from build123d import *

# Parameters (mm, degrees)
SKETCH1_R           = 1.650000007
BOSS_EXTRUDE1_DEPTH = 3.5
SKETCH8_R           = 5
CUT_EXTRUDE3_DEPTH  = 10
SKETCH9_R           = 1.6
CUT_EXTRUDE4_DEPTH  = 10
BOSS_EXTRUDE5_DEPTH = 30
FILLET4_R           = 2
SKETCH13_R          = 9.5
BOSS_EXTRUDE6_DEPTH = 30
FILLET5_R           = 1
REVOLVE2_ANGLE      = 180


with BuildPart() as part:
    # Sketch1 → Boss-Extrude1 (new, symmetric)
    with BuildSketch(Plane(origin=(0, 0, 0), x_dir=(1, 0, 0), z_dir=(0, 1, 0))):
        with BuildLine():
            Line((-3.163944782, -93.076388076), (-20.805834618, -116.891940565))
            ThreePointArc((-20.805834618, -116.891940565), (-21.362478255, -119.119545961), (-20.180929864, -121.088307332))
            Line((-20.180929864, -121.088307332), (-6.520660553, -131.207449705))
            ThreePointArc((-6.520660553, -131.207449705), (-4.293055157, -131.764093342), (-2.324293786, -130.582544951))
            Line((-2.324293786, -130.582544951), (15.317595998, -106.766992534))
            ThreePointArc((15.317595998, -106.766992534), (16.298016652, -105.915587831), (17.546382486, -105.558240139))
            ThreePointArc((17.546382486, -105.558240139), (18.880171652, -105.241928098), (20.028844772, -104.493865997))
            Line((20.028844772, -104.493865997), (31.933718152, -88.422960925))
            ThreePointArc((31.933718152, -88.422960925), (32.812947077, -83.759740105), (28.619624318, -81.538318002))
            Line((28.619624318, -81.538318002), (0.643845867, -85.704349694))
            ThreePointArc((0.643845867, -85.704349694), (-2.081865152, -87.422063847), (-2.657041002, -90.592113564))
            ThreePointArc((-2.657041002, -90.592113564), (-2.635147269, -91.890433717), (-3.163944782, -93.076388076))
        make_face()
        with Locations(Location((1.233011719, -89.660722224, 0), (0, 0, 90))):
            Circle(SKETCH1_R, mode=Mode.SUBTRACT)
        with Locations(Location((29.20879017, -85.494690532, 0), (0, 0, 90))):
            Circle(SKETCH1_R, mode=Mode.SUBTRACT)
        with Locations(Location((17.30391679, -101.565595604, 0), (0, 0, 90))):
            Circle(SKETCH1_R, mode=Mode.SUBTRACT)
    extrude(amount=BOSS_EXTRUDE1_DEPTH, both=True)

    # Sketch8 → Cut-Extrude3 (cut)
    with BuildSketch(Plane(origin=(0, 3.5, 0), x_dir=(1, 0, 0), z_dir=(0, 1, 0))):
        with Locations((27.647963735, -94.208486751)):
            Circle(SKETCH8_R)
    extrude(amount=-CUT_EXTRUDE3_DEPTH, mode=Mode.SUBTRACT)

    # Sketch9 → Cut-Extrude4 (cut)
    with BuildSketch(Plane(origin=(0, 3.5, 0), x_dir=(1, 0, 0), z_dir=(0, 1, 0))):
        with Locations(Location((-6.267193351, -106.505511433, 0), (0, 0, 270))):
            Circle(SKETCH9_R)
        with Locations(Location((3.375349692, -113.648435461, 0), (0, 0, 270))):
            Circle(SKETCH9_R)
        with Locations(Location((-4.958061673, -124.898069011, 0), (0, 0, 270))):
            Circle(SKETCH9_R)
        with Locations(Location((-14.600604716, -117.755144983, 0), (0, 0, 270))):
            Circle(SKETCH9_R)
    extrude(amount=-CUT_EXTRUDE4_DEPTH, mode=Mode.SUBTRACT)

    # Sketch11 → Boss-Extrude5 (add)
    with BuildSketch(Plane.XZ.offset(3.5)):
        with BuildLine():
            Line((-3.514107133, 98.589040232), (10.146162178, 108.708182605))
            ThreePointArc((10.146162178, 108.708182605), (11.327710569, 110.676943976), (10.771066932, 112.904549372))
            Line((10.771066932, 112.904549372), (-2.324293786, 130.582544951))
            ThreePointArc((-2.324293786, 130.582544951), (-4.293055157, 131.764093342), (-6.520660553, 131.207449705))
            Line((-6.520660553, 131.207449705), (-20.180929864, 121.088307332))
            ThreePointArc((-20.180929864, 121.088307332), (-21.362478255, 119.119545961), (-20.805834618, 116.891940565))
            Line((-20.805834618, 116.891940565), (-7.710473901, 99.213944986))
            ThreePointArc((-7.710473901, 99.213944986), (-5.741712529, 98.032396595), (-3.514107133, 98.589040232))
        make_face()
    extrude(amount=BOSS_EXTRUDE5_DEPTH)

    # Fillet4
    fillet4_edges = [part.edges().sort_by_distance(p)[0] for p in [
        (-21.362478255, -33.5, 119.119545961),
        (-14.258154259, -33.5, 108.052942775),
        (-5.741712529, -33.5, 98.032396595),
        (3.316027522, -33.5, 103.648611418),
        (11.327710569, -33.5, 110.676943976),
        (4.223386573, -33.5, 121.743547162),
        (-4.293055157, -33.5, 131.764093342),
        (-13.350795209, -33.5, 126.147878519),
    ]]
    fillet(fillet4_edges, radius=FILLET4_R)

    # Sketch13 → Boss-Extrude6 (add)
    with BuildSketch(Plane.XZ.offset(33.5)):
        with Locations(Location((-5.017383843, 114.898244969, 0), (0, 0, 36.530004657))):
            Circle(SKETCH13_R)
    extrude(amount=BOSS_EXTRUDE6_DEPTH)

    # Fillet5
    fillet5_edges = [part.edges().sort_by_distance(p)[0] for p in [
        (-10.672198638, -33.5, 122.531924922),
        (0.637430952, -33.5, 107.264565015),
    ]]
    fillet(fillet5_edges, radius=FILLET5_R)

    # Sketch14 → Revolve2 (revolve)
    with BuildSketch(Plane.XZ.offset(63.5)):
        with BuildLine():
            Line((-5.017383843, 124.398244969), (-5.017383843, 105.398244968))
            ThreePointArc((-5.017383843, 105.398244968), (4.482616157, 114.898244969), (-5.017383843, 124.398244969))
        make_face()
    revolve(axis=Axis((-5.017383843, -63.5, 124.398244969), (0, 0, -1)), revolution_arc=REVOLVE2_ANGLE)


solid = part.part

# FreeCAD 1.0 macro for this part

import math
import FreeCAD as App
import Part
import Sketcher

V = App.Vector
Q = App.Units.Quantity


def edges_at(feature, points):
    """Names of the edges that pass closest to the given points."""
    edges = feature.Shape.Edges
    near = lambda p: min(range(len(edges)), key=lambda i: edges[i].distToShape(Part.Vertex(*p))[0])
    return sorted({f"Edge{near(p) + 1}" for p in points})

doc = App.newDocument("Part")
body = doc.addObject("PartDesign::Body", "Body")

# Sketch on XZ plane
sketch1 = body.newObject("Sketcher::SketchObject", "Sketch")
sketch1.AttachmentSupport = (doc.getObject("XZ_Plane"), [""])
sketch1.MapMode = "FlatFace"
sketch1.addGeometry([
    Part.LineSegment(V(-3.163945, 93.076388, 0), V(-20.805835, 116.891941, 0)),  # 0
    Part.ArcOfCircle(Part.Circle(V(-18.395199, 118.677672, 0), V(0, 0, 1), 3), math.radians(126.530005), math.radians(216.530005)),  # 1
    Part.LineSegment(V(-20.18093, 121.088307, 0), V(-6.520661, 131.20745, 0)),  # 2
    Part.ArcOfCircle(Part.Circle(V(-4.73493, 128.796814, 0), V(0, 0, 1), 3), math.radians(36.530005), math.radians(126.530005)),  # 3
    Part.LineSegment(V(-2.324294, 130.582545, 0), V(15.317596, 106.766993, 0)),  # 4
    Part.ArcOfCircle(Part.Circle(V(17.728232, 108.552724, 0), V(0, 0, 1), 3), math.radians(-143.469995), math.radians(-93.475196)),  # 5
    Part.ArcOfCircle(Part.Circle(V(17.303917, 101.565596, 0), V(0, 0, 1), 4), math.radians(47.060009), math.radians(86.524804)),  # 6
    Part.LineSegment(V(20.028845, 104.493866, 0), V(31.933718, 88.422961, 0)),  # 7
    Part.ArcOfCircle(Part.Circle(V(29.20879, 85.494691, 0), V(0, 0, 1), 4), math.radians(-98.469995), math.radians(47.060009)),  # 8
    Part.LineSegment(V(28.619624, 81.538318, 0), V(0.643846, 85.70435, 0)),  # 9
    Part.ArcOfCircle(Part.Circle(V(1.233012, 89.660722, 0), V(0, 0, 1), 4), math.radians(166.535206), math.radians(261.530005)),  # 10
    Part.ArcOfCircle(Part.Circle(V(-5.574581, 91.290657, 0), V(0, 0, 1), 3), math.radians(-13.464794), math.radians(36.530005)),  # 11
    Part.Circle(V(17.303917, 101.565596, 0), V(0, 0, 1), 1.65),  # 12
    Part.Circle(V(1.233012, 89.660722, 0), V(0, 0, 1), 1.65),  # 13
    Part.Circle(V(29.20879, 85.494691, 0), V(0, 0, 1), 1.65),  # 14
], False)
sketch1.addConstraint([
    Sketcher.Constraint("Tangent", 0, 2, 1, 2),
    Sketcher.Constraint("Tangent", 1, 1, 2, 1),
    Sketcher.Constraint("Tangent", 2, 2, 3, 2),
    Sketcher.Constraint("Tangent", 3, 1, 4, 1),
    Sketcher.Constraint("Tangent", 4, 2, 5, 1),
    Sketcher.Constraint("Tangent", 5, 2, 6, 2),
    Sketcher.Constraint("Coincident", 6, 1, 7, 1),
    Sketcher.Constraint("Coincident", 7, 2, 8, 2),
    Sketcher.Constraint("Tangent", 8, 1, 9, 1),
    Sketcher.Constraint("Tangent", 9, 2, 10, 2),
    Sketcher.Constraint("Tangent", 10, 1, 11, 1),
    Sketcher.Constraint("Tangent", 11, 2, 0, 1),
    Sketcher.Constraint("Coincident", 12, 3, 6, 3),
    Sketcher.Constraint("Coincident", 13, 3, 10, 3),
    Sketcher.Constraint("Coincident", 14, 3, 8, 3),
    Sketcher.Constraint("Equal", 1, 3),
    Sketcher.Constraint("Equal", 3, 5),
    Sketcher.Constraint("Equal", 6, 8),
    Sketcher.Constraint("Equal", 8, 10),
    Sketcher.Constraint("Equal", 5, 11),
    Sketcher.Constraint("Equal", 12, 13),
    Sketcher.Constraint("Equal", 13, 14),
    Sketcher.Constraint("Perpendicular", 0, 2),
    Sketcher.Constraint("Perpendicular", 2, 4),
    Sketcher.Constraint("Parallel", 4, 7),
    Sketcher.Constraint("Equal", 0, 4),
    Sketcher.Constraint("Radius", 1, Q("3 mm")),
    Sketcher.Constraint("Radius", 6, Q("4 mm")),
    Sketcher.Constraint("Diameter", 12, Q("3.3 mm")),
    Sketcher.Constraint("Distance", 2, Q("17 mm")),
    Sketcher.Constraint("Distance", 7, Q("20 mm")),
    Sketcher.Constraint("Angle", 0, Q("126.530005 deg")),
    Sketcher.Constraint("Angle", 9, Q("171.530005 deg")),
    Sketcher.Constraint("DistanceY", 10, 3, 5, 3, Q("18.892001 mm")),
    Sketcher.Constraint("DistanceX", 1, 3, -1, 1, Q("18.395199 mm")),
    Sketcher.Constraint("DistanceX", 6, 3, 7, 2, Q("14.629801 mm")),
    Sketcher.Constraint("Distance", 9, Q("28.284271 mm")),
    Sketcher.Constraint("DistanceY", -1, 1, 1, 3, Q("118.677672 mm")),
    Sketcher.Constraint("DistanceX", -1, 1, 5, 3, Q("17.728232 mm")),
])
pad1 = body.newObject("PartDesign::Pad", "Pad")
pad1.Profile = sketch1
pad1.Length = 7
pad1.Midplane = True

# Sketch on XZ plane
sketch2 = body.newObject("Sketcher::SketchObject", "Sketch001")
sketch2.AttachmentSupport = (doc.getObject("XZ_Plane"), [""])
sketch2.MapMode = "FlatFace"
sketch2.AttachmentOffset = App.Placement(V(0, 0, -3.5), App.Rotation())
sketch2.addGeometry(Part.Circle(V(27.647964, 94.208487, 0), V(0, 0, 1), 5), False)
sketch2.addConstraint([
    Sketcher.Constraint("Diameter", 0, Q("10 mm")),
    Sketcher.Constraint("DistanceX", -1, 1, 0, 3, Q("27.647964 mm")),
    Sketcher.Constraint("DistanceY", -1, 1, 0, 3, Q("94.208487 mm")),
])
pocket1 = body.newObject("PartDesign::Pocket", "Pocket")
pocket1.Profile = sketch2
pocket1.Length = 10
pocket1.Reversed = True

# Sketch on XZ plane
sketch3 = body.newObject("Sketcher::SketchObject", "Sketch002")
sketch3.AttachmentSupport = (doc.getObject("XZ_Plane"), [""])
sketch3.MapMode = "FlatFace"
sketch3.AttachmentOffset = App.Placement(V(0, 0, -3.5), App.Rotation())
sketch3.addGeometry([
    Part.Circle(V(-6.267193, 106.505511, 0), V(0, 0, 1), 1.6),
    Part.Circle(V(3.37535, 113.648435, 0), V(0, 0, 1), 1.6),
    Part.Circle(V(-4.958062, 124.898069, 0), V(0, 0, 1), 1.6),
    Part.Circle(V(-14.600605, 117.755145, 0), V(0, 0, 1), 1.6),
], False)
sketch3.addConstraint([
    Sketcher.Constraint("Equal", 0, 1),
    Sketcher.Constraint("Equal", 1, 2),
    Sketcher.Constraint("Equal", 2, 3),
    Sketcher.Constraint("Diameter", 0, Q("3.2 mm")),
    Sketcher.Constraint("DistanceY", -1, 1, 0, 3, Q("106.505511 mm")),
    Sketcher.Constraint("DistanceX", -1, 1, 1, 3, Q("3.37535 mm")),
    Sketcher.Constraint("DistanceX", 2, 3, -1, 1, Q("4.958062 mm")),
    Sketcher.Constraint("DistanceY", -1, 1, 2, 3, Q("124.898069 mm")),
    Sketcher.Constraint("DistanceX", 0, 3, 2, 3, Q("1.309132 mm")),
    Sketcher.Constraint("DistanceX", 3, 3, 0, 3, Q("8.333411 mm")),
    Sketcher.Constraint("DistanceY", 1, 3, 3, 3, Q("4.10671 mm")),
    Sketcher.Constraint("DistanceY", -1, 1, 1, 3, Q("113.648435 mm")),
])
pocket2 = body.newObject("PartDesign::Pocket", "Pocket001")
pocket2.Profile = sketch3
pocket2.Length = 10
pocket2.Reversed = True

# Sketch on XZ plane
sketch4 = body.newObject("Sketcher::SketchObject", "Sketch003")
sketch4.AttachmentSupport = (doc.getObject("XZ_Plane"), [""])
sketch4.MapMode = "FlatFace"
sketch4.AttachmentOffset = App.Placement(V(0, 0, 3.5), App.Rotation())
sketch4.addGeometry([
    Part.LineSegment(V(-3.514107, 98.58904, 0), V(10.146162, 108.708183, 0)),  # 0
    Part.ArcOfCircle(Part.Circle(V(8.360431, 111.118818, 0), V(0, 0, 1), 3), math.radians(-53.469995), math.radians(36.530005)),  # 1
    Part.LineSegment(V(10.771067, 112.904549, 0), V(-2.324294, 130.582545, 0)),  # 2
    Part.ArcOfCircle(Part.Circle(V(-4.73493, 128.796814, 0), V(0, 0, 1), 3), math.radians(36.530005), math.radians(126.530005)),  # 3
    Part.LineSegment(V(-6.520661, 131.20745, 0), V(-20.18093, 121.088307, 0)),  # 4
    Part.ArcOfCircle(Part.Circle(V(-18.395199, 118.677672, 0), V(0, 0, 1), 3), math.radians(126.530005), math.radians(216.530005)),  # 5
    Part.LineSegment(V(-20.805835, 116.891941, 0), V(-7.710474, 99.213945, 0)),  # 6
    Part.ArcOfCircle(Part.Circle(V(-5.299838, 100.999676, 0), V(0, 0, 1), 3), math.radians(-143.469995), math.radians(-53.469995)),  # 7
], False)
sketch4.addConstraint([
    Sketcher.Constraint("Tangent", 0, 2, 1, 1),
    Sketcher.Constraint("Tangent", 1, 2, 2, 1),
    Sketcher.Constraint("Tangent", 2, 2, 3, 1),
    Sketcher.Constraint("Tangent", 3, 2, 4, 1),
    Sketcher.Constraint("Tangent", 4, 2, 5, 1),
    Sketcher.Constraint("Tangent", 5, 2, 6, 1),
    Sketcher.Constraint("Tangent", 6, 2, 7, 1),
    Sketcher.Constraint("Tangent", 7, 2, 0, 1),
    Sketcher.Constraint("Equal", 1, 3),
    Sketcher.Constraint("Equal", 3, 5),
    Sketcher.Constraint("Equal", 5, 7),
    Sketcher.Constraint("Perpendicular", 0, 2),
    Sketcher.Constraint("Perpendicular", 2, 4),
    Sketcher.Constraint("Perpendicular", 4, 6),
    Sketcher.Constraint("Radius", 1, Q("3 mm")),
    Sketcher.Constraint("Distance", 0, Q("17 mm")),
    Sketcher.Constraint("Distance", 2, Q("22 mm")),
    Sketcher.Constraint("Angle", 0, Q("36.530005 deg")),
    Sketcher.Constraint("DistanceX", 5, 3, -1, 1, Q("18.395199 mm")),
    Sketcher.Constraint("DistanceY", -1, 1, 1, 3, Q("111.118818 mm")),
])
pad2 = body.newObject("PartDesign::Pad", "Pad001")
pad2.Profile = sketch4
pad2.Length = 30
doc.recompute()

fillet = body.newObject("PartDesign::Fillet", "Fillet")
fillet.Base = (pad2, edges_at(pad2, [
    (-21.362, -33.5, 119.12),
    (-14.258, -33.5, 108.053),
    (-5.742, -33.5, 98.032),
    (3.316, -33.5, 103.649),
    (11.328, -33.5, 110.677),
    (4.223, -33.5, 121.744),
    (-4.293, -33.5, 131.764),
    (-13.351, -33.5, 126.148),
]))
fillet.Radius = 2

# Sketch on XZ plane
sketch5 = body.newObject("Sketcher::SketchObject", "Sketch004")
sketch5.AttachmentSupport = (doc.getObject("XZ_Plane"), [""])
sketch5.MapMode = "FlatFace"
sketch5.AttachmentOffset = App.Placement(V(0, 0, 33.5), App.Rotation())
sketch5.addGeometry(Part.Circle(V(-5.017384, 114.898245, 0), V(0, 0, 1), 9.5), False)
sketch5.addConstraint([
    Sketcher.Constraint("Diameter", 0, Q("19 mm")),
    Sketcher.Constraint("DistanceX", 0, 3, -1, 1, Q("5.017384 mm")),
    Sketcher.Constraint("DistanceY", -1, 1, 0, 3, Q("114.898245 mm")),
])
pad3 = body.newObject("PartDesign::Pad", "Pad002")
pad3.Profile = sketch5
pad3.Length = 30
doc.recompute()

fillet2 = body.newObject("PartDesign::Fillet", "Fillet001")
fillet2.Base = (pad3, edges_at(pad3, [(-10.672, -33.5, 122.532), (0.637, -33.5, 107.265)]))
fillet2.Radius = 1

# Sketch on XZ plane
sketch6 = body.newObject("Sketcher::SketchObject", "Sketch005")
sketch6.AttachmentSupport = (doc.getObject("XZ_Plane"), [""])
sketch6.MapMode = "FlatFace"
sketch6.AttachmentOffset = App.Placement(V(0, 0, 63.5), App.Rotation())
sketch6.addGeometry([
    Part.LineSegment(V(-5.017384, 124.398245, 0), V(-5.017384, 105.398245, 0)),
    Part.ArcOfCircle(Part.Circle(V(-5.017384, 114.898245, 0), V(0, 0, 1), 9.5), math.radians(-90), math.radians(90)),
], False)
sketch6.addGeometry(Part.LineSegment(V(-5.017384, 124.398245, 0), V(-5.017384, 105.398245, 0)), True)  # axis
sketch6.addConstraint([
    Sketcher.Constraint("Coincident", 0, 1, 1, 2),
    Sketcher.Constraint("Coincident", 1, 1, 0, 2),
    Sketcher.Constraint("Vertical", 0),
    Sketcher.Constraint("Vertical", 2),
    Sketcher.Constraint("Coincident", 2, 1, 0, 1),
    Sketcher.Constraint("Vertical", 1, 3, 0, 1),
    Sketcher.Constraint("Equal", 0, 2),
    Sketcher.Constraint("Radius", 1, Q("9.5 mm")),
    Sketcher.Constraint("DistanceX", 1, 3, -1, 1, Q("5.017384 mm")),
    Sketcher.Constraint("DistanceY", -1, 1, 1, 3, Q("114.898245 mm")),
])
revolution = body.newObject("PartDesign::Revolution", "Revolution")
revolution.Profile = sketch6
revolution.ReferenceAxis = (sketch6, ["Axis0"])
revolution.Angle = 180

doc.recompute()
